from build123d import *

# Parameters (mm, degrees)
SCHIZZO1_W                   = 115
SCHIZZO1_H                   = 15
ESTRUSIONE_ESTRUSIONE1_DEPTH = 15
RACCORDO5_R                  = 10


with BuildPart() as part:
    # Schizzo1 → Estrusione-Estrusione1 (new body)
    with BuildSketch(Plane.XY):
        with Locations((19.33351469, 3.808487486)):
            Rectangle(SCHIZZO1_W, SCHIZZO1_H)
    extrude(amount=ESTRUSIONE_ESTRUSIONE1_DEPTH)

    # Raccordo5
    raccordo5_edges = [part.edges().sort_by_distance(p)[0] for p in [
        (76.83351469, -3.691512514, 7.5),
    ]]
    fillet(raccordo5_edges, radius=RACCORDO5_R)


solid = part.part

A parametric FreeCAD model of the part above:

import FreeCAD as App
import Part
import Sketcher
Q = App.Units.Quantity


def edges_at(feature, points):
    """Names of the edges that pass closest to the given points."""
    edges = feature.Shape.Edges
    near = lambda p: min(range(len(edges)), key=lambda i: edges[i].distToShape(Part.Vertex(*p))[0])
    return sorted({f"Edge{near(p) + 1}" for p in points})


def add_polygon(sketch, points):
    """Adds a closed chain of lines whose ends are joined by coincident constraints."""
    first, n = sketch.GeometryCount, len(points)
    for a, b in zip(points, points[1:] + points[:1]):
        sketch.addGeometry(Part.LineSegment(App.Vector(*a, 0), App.Vector(*b, 0)), False)
    for i in range(n):
        sketch.addConstraint(Sketcher.Constraint("Coincident", first + i, 2, first + (i + 1) % n, 1))

doc = App.newDocument("Part")
body = doc.addObject("PartDesign::Body", "Body")

# Sketch on XY plane
sketch1 = doc.addObject("Sketcher::SketchObject", "Sketch")
body.addObject(sketch1)
sketch1.AttachmentSupport = (doc.XY_Plane, [""])
sketch1.MapMode = "FlatFace"
add_polygon(sketch1, [(-38, 11), (-38, -4), (77, -4), (77, 11)])  # lines 0-3
sketch1.addConstraint([
    Sketcher.Constraint("Vertical", 0),
    Sketcher.Constraint("Horizontal", 1),
    Sketcher.Constraint("Vertical", 2),
    Sketcher.Constraint("Horizontal", 3),
    Sketcher.Constraint("DistanceX", 1, 1, 1, 2, Q("115 mm")),
    Sketcher.Constraint("DistanceY", 0, 2, 0, 1, Q("15 mm")),
    Sketcher.Constraint("DistanceX", 0, 2, -1, 1, Q("38.166485 mm")),
    Sketcher.Constraint("DistanceY", 0, 2, -1, 1, Q("3.691513 mm")),
])
pad1 = doc.addObject("PartDesign::Pad", "Pad")
body.addObject(pad1)
pad1.Profile = sketch1
pad1.Length = 15
doc.recompute()

fillet = doc.addObject("PartDesign::Fillet", "Fillet")
body.addObject(fillet)
fillet.Base = (pad1, edges_at(pad1, [(76.834, -3.692, 7.5)]))
fillet.Radius = 10

doc.recompute()
